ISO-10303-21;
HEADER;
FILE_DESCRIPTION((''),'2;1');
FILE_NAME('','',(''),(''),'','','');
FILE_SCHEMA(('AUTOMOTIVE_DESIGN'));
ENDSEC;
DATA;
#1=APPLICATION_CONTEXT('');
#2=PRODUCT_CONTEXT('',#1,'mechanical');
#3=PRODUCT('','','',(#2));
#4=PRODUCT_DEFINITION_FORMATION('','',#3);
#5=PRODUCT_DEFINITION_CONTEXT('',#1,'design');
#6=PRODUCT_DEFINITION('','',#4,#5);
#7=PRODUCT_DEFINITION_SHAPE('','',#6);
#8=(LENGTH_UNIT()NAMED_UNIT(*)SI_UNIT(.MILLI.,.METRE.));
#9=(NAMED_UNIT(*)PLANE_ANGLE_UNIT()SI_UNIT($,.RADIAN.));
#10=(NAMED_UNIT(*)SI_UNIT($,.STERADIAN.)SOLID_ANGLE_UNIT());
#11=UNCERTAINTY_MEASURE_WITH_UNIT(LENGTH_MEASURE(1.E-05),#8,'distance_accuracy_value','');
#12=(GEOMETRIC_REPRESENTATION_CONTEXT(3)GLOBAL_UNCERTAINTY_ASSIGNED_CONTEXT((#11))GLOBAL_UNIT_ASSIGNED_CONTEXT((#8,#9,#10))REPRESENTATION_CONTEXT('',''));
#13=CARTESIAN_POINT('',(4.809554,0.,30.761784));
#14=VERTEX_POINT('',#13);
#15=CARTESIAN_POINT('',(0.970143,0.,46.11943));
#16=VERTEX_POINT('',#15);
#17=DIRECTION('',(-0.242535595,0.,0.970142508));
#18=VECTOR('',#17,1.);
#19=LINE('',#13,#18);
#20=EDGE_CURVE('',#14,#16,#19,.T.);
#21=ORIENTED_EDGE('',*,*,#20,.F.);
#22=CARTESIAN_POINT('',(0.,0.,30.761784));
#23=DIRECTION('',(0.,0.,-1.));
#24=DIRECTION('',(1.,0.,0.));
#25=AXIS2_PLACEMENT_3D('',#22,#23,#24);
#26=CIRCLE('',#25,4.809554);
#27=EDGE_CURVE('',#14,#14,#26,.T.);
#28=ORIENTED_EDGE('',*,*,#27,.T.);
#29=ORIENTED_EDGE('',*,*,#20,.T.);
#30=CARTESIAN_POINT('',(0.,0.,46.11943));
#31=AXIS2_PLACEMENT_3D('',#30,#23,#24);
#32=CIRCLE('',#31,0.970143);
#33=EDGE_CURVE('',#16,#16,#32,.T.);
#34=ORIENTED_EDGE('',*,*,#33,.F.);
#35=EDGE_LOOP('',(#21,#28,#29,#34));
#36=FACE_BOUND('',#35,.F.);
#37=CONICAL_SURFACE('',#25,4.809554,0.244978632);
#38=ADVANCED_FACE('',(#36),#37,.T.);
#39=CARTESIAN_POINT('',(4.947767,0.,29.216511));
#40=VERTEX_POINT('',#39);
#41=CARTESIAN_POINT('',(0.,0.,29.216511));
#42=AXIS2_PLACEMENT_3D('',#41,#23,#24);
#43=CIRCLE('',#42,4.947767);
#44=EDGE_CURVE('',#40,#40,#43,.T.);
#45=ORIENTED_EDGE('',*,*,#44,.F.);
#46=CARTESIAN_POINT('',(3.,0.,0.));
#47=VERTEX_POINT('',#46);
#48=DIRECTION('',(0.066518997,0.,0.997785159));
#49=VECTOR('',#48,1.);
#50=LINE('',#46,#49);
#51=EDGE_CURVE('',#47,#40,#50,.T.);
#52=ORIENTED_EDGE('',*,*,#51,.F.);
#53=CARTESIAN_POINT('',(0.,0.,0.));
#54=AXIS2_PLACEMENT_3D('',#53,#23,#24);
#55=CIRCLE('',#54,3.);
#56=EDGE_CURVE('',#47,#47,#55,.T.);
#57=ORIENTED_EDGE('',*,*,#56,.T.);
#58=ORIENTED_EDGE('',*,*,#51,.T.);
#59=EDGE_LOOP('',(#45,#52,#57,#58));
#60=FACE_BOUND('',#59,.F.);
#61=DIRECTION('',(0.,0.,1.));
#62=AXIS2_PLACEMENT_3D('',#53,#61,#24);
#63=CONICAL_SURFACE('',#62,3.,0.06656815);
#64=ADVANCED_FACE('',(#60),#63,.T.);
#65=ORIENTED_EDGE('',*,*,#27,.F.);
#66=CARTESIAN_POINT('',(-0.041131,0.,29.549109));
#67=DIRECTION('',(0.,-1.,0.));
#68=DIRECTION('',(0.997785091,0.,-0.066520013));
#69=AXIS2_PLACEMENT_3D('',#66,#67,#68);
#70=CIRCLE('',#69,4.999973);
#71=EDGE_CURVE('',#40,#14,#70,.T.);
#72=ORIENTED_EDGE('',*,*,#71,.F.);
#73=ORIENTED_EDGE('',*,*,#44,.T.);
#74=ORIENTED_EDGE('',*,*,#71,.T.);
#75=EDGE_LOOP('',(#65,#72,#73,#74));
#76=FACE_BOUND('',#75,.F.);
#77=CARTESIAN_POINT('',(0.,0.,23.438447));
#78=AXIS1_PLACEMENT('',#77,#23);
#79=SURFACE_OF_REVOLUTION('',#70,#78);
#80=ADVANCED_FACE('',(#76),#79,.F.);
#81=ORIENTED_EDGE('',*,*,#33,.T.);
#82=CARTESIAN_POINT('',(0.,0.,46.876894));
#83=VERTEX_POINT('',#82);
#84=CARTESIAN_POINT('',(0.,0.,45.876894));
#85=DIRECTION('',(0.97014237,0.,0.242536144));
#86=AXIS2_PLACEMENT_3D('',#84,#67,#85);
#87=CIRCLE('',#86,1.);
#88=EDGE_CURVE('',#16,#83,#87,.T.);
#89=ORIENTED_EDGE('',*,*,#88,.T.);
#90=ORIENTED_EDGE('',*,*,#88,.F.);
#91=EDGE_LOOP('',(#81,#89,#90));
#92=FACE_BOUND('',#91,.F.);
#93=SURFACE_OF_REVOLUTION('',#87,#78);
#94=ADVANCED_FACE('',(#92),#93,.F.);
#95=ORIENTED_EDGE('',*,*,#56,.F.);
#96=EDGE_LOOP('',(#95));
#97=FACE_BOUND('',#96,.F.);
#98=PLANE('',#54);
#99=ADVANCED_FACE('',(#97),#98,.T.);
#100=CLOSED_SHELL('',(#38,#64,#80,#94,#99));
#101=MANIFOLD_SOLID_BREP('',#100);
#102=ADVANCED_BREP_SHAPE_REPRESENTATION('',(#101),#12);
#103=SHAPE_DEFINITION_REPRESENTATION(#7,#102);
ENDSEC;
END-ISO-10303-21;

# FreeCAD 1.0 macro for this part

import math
import FreeCAD as App
import Part
import Sketcher

doc = App.newDocument("Part")
params = doc.addObject("Spreadsheet::Sheet", "Params")
for row, (alias, value) in enumerate([
    ("sketch1_radius", "1 mm"),
    ("sketch1_width", "3 mm"),
    ("revolution_angle", "360 deg"),
], start=1):
    params.set(f"A{row}", alias)
    params.set(f"B{row}", "=" + value)
    params.setAlias(f"B{row}", alias)

body = doc.addObject("PartDesign::Body", "Body")

sketch1 = body.newObject("Sketcher::SketchObject", "Sketch")
sketch1.AttachmentSupport = (doc.getObject("XZ_Plane"), [""])
sketch1.MapMode = "FlatFace"
sketch1.addGeometry([
    Part.LineSegment(App.Vector(4.809554, 30.761784, 0), App.Vector(0.970143, 46.11943, 0)),
    Part.ArcOfCircle(Part.Circle(App.Vector(0, 45.876894, 0), App.Vector(0, 0, 1), 1), math.radians(14.036274), math.radians(90.000025)),
    Part.LineSegment(App.Vector(0, 46.876894, 0), App.Vector(0, 0, 0)),
    Part.LineSegment(App.Vector(0, 0, 0), App.Vector(3, 0, 0)),
    Part.LineSegment(App.Vector(3, 0, 0), App.Vector(4.947767, 29.216511, 0)),
    Part.ArcOfCircle(Part.Circle(App.Vector(-0.041131, 29.549109, 0), App.Vector(0, 0, 1), 4.999973), math.radians(-3.814132), math.radians(14.036281)),
], False)
sketch1.addConstraint([
    Sketcher.Constraint("Coincident", 0, 2, 1, 1),
    Sketcher.Constraint("Coincident", 1, 2, 2, 1),
    Sketcher.Constraint("Coincident", 2, 2, 3, 1),
    Sketcher.Constraint("Coincident", 3, 2, 4, 1),
    Sketcher.Constraint("Coincident", 4, 2, 5, 1),
    Sketcher.Constraint("Coincident", 5, 2, 0, 1),
    Sketcher.Constraint("Vertical", 2),
    Sketcher.Constraint("Horizontal", 3),
    Sketcher.Constraint("Coincident", 2, 2, -1, 1),
    Sketcher.Constraint("PointOnObject", 1, 3, -2),
    Sketcher.Constraint("Radius", 1, 1.0),
    Sketcher.Constraint("DistanceX", 3, 1, 3, 2, 3.0),
    Sketcher.Constraint("Radius", 5, 4.999973),
    Sketcher.Constraint("Distance", 0, 15.830299),
    Sketcher.Constraint("DistanceX", 5, 3, 4, 2, 4.988898),
    Sketcher.Constraint("DistanceY", 2, 2, 2, 1, 46.876894),
    Sketcher.Constraint("DistanceX", 5, 3, -1, 1, 0.041131),
    Sketcher.Constraint("DistanceY", -1, 1, 5, 3, 29.549109),
    Sketcher.Constraint("DistanceY", -1, 1, 0, 2, 46.11943),
])
sketch1.setExpression("Constraints[10]", "Params.sketch1_radius")
sketch1.setExpression("Constraints[11]", "Params.sketch1_width")
revolution = body.newObject("PartDesign::Revolution", "Revolution")
revolution.Profile = sketch1
revolution.ReferenceAxis = (sketch1, ["V_Axis"])
revolution.setExpression("Angle", "Params.revolution_angle")

doc.recompute()
